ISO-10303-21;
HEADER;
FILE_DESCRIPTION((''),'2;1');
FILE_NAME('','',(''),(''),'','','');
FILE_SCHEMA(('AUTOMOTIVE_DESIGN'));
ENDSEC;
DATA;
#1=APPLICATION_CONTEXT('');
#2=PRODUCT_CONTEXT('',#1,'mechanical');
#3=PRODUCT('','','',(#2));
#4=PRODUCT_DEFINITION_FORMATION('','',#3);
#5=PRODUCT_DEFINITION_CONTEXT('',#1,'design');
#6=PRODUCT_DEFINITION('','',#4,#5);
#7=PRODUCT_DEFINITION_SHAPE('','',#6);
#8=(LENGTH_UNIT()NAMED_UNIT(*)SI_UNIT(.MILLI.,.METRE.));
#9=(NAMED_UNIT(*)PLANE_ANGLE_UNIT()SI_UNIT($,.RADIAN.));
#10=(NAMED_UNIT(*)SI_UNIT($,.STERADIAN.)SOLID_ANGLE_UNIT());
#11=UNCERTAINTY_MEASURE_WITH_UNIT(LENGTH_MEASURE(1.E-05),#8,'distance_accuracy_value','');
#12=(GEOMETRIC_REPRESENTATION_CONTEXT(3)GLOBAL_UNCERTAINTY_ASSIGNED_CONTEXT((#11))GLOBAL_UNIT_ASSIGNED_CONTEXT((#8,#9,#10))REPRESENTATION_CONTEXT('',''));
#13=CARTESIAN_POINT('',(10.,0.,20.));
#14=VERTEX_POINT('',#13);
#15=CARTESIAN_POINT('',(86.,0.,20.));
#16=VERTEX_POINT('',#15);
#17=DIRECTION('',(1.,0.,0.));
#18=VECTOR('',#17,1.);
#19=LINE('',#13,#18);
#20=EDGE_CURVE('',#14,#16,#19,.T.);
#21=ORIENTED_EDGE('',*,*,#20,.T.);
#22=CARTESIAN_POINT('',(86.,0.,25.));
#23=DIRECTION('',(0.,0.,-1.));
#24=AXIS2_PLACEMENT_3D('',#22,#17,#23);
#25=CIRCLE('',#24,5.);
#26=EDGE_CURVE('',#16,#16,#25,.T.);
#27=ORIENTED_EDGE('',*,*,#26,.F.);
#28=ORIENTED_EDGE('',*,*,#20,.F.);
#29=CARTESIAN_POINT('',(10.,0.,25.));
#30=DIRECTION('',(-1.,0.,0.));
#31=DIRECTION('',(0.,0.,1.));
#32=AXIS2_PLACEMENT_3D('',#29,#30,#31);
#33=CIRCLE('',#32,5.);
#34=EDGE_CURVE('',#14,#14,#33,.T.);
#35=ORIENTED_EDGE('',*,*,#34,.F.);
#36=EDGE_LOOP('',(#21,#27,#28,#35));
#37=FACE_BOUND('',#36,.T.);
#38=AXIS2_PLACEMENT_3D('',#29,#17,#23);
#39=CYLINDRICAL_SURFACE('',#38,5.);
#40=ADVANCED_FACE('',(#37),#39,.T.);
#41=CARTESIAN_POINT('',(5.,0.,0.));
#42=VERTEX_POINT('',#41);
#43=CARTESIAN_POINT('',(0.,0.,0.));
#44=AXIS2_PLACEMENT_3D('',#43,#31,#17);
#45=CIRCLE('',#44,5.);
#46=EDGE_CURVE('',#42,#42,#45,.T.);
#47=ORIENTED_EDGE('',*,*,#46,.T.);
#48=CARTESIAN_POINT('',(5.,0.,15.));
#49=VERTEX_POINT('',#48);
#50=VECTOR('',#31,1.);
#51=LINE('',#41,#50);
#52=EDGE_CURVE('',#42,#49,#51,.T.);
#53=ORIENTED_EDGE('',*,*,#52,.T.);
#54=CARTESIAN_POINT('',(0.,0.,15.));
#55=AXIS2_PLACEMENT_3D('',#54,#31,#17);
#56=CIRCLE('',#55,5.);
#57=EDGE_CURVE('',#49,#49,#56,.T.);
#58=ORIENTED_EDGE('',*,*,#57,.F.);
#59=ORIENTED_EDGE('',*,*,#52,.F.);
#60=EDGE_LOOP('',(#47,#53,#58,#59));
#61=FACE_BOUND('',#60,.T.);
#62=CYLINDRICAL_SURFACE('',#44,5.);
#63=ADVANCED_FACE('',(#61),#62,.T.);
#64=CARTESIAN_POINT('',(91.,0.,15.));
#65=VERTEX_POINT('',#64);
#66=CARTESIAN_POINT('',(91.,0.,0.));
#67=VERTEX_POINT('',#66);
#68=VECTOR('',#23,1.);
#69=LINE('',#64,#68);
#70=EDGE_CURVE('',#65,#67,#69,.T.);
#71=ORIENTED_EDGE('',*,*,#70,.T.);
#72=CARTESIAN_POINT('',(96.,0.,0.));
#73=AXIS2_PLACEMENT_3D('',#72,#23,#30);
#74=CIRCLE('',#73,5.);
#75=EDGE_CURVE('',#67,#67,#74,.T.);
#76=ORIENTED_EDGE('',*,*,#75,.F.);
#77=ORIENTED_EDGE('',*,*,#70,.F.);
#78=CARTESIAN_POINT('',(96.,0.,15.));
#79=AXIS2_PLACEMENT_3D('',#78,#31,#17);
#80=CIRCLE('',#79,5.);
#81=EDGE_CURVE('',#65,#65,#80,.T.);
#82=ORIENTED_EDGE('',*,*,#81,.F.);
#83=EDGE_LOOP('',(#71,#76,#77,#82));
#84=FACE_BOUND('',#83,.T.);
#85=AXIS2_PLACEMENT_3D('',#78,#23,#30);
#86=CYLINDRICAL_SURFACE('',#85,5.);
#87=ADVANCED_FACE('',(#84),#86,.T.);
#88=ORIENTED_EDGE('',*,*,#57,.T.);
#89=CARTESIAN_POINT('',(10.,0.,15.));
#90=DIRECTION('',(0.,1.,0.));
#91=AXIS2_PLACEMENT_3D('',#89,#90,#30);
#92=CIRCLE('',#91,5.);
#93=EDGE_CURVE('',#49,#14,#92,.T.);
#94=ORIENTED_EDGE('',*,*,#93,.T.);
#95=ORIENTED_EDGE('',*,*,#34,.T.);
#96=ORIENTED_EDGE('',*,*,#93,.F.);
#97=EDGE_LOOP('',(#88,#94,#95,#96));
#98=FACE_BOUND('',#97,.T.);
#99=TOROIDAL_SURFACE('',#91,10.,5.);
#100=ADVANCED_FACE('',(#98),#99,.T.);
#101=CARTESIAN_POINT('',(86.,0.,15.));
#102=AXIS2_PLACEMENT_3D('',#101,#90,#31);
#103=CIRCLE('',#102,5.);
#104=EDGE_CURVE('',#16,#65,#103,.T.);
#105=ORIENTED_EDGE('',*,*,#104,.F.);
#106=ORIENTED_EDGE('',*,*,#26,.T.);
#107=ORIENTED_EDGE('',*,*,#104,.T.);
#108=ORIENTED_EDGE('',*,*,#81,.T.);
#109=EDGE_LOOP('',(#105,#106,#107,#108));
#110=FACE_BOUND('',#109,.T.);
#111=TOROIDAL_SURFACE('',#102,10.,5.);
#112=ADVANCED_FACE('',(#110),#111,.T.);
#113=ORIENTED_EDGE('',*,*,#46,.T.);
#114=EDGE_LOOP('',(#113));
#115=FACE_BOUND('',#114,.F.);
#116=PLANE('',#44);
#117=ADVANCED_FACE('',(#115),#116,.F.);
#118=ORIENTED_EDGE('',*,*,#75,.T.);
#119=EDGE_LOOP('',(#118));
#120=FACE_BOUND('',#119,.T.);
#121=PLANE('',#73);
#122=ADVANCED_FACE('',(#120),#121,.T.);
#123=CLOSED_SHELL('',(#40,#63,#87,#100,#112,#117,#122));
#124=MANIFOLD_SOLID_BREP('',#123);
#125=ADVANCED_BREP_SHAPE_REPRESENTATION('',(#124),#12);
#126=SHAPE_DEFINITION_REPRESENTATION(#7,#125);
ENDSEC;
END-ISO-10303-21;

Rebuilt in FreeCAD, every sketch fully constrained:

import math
import FreeCAD as App
import Part
import Sketcher

V = App.Vector
Q = App.Units.Quantity

doc = App.newDocument("Part")
body = doc.addObject("PartDesign::Body", "Body")

sketch1 = body.newObject("Sketcher::SketchObject", "Sketch")
sketch1.AttachmentSupport = (doc.getObject("XY_Plane"), [""])
sketch1.MapMode = "FlatFace"
sketch1.addGeometry(Part.Circle(V(0, 0, 0), V(0, 0, 1), 5), False)
sketch1.addConstraint([
    Sketcher.Constraint("Coincident", 0, 3, -1, 1),
    Sketcher.Constraint("Diameter", 0, Q("10 mm")),
])

sketch2 = body.newObject("Sketcher::SketchObject", "Sketch001")
sketch2.AttachmentSupport = (doc.getObject("XZ_Plane"), [""])
sketch2.MapMode = "FlatFace"
sketch2.addGeometry([
    Part.LineSegment(V(0, 0, 0), V(0, 15, 0)),
    Part.ArcOfCircle(Part.Circle(V(10, 15, 0), V(0, 0, 1), 10), math.radians(90), math.radians(180)),
    Part.LineSegment(V(10, 25, 0), V(86, 25, 0)),
    Part.ArcOfCircle(Part.Circle(V(86, 15, 0), V(0, 0, 1), 10), math.radians(0), math.radians(90)),
    Part.LineSegment(V(96, 15, 0), V(96, 0, 0)),
], False)
sketch2.addConstraint([
    Sketcher.Constraint("Tangent", 0, 2, 1, 2),
    Sketcher.Constraint("Tangent", 1, 1, 2, 1),
    Sketcher.Constraint("Tangent", 2, 2, 3, 2),
    Sketcher.Constraint("Tangent", 3, 1, 4, 1),
    Sketcher.Constraint("Vertical", 0),
    Sketcher.Constraint("Horizontal", 2),
    Sketcher.Constraint("Vertical", 4),
    Sketcher.Constraint("Coincident", 0, 1, -1, 1),
    Sketcher.Constraint("Equal", 1, 3),
    Sketcher.Constraint("PointOnObject", 4, 2, -1),
    Sketcher.Constraint("Radius", 1, Q("10 mm")),
    Sketcher.Constraint("DistanceX", 2, 1, 2, 2, Q("76 mm")),
    Sketcher.Constraint("DistanceY", 0, 1, 0, 2, Q("15 mm")),
])
doc.recompute()

additivepipe = body.newObject("PartDesign::AdditivePipe", "AdditivePipe")
additivepipe.Profile = sketch1
additivepipe.Spine = (sketch2, ["Edge1", "Edge2", "Edge3", "Edge4", "Edge5"])

doc.recompute()
